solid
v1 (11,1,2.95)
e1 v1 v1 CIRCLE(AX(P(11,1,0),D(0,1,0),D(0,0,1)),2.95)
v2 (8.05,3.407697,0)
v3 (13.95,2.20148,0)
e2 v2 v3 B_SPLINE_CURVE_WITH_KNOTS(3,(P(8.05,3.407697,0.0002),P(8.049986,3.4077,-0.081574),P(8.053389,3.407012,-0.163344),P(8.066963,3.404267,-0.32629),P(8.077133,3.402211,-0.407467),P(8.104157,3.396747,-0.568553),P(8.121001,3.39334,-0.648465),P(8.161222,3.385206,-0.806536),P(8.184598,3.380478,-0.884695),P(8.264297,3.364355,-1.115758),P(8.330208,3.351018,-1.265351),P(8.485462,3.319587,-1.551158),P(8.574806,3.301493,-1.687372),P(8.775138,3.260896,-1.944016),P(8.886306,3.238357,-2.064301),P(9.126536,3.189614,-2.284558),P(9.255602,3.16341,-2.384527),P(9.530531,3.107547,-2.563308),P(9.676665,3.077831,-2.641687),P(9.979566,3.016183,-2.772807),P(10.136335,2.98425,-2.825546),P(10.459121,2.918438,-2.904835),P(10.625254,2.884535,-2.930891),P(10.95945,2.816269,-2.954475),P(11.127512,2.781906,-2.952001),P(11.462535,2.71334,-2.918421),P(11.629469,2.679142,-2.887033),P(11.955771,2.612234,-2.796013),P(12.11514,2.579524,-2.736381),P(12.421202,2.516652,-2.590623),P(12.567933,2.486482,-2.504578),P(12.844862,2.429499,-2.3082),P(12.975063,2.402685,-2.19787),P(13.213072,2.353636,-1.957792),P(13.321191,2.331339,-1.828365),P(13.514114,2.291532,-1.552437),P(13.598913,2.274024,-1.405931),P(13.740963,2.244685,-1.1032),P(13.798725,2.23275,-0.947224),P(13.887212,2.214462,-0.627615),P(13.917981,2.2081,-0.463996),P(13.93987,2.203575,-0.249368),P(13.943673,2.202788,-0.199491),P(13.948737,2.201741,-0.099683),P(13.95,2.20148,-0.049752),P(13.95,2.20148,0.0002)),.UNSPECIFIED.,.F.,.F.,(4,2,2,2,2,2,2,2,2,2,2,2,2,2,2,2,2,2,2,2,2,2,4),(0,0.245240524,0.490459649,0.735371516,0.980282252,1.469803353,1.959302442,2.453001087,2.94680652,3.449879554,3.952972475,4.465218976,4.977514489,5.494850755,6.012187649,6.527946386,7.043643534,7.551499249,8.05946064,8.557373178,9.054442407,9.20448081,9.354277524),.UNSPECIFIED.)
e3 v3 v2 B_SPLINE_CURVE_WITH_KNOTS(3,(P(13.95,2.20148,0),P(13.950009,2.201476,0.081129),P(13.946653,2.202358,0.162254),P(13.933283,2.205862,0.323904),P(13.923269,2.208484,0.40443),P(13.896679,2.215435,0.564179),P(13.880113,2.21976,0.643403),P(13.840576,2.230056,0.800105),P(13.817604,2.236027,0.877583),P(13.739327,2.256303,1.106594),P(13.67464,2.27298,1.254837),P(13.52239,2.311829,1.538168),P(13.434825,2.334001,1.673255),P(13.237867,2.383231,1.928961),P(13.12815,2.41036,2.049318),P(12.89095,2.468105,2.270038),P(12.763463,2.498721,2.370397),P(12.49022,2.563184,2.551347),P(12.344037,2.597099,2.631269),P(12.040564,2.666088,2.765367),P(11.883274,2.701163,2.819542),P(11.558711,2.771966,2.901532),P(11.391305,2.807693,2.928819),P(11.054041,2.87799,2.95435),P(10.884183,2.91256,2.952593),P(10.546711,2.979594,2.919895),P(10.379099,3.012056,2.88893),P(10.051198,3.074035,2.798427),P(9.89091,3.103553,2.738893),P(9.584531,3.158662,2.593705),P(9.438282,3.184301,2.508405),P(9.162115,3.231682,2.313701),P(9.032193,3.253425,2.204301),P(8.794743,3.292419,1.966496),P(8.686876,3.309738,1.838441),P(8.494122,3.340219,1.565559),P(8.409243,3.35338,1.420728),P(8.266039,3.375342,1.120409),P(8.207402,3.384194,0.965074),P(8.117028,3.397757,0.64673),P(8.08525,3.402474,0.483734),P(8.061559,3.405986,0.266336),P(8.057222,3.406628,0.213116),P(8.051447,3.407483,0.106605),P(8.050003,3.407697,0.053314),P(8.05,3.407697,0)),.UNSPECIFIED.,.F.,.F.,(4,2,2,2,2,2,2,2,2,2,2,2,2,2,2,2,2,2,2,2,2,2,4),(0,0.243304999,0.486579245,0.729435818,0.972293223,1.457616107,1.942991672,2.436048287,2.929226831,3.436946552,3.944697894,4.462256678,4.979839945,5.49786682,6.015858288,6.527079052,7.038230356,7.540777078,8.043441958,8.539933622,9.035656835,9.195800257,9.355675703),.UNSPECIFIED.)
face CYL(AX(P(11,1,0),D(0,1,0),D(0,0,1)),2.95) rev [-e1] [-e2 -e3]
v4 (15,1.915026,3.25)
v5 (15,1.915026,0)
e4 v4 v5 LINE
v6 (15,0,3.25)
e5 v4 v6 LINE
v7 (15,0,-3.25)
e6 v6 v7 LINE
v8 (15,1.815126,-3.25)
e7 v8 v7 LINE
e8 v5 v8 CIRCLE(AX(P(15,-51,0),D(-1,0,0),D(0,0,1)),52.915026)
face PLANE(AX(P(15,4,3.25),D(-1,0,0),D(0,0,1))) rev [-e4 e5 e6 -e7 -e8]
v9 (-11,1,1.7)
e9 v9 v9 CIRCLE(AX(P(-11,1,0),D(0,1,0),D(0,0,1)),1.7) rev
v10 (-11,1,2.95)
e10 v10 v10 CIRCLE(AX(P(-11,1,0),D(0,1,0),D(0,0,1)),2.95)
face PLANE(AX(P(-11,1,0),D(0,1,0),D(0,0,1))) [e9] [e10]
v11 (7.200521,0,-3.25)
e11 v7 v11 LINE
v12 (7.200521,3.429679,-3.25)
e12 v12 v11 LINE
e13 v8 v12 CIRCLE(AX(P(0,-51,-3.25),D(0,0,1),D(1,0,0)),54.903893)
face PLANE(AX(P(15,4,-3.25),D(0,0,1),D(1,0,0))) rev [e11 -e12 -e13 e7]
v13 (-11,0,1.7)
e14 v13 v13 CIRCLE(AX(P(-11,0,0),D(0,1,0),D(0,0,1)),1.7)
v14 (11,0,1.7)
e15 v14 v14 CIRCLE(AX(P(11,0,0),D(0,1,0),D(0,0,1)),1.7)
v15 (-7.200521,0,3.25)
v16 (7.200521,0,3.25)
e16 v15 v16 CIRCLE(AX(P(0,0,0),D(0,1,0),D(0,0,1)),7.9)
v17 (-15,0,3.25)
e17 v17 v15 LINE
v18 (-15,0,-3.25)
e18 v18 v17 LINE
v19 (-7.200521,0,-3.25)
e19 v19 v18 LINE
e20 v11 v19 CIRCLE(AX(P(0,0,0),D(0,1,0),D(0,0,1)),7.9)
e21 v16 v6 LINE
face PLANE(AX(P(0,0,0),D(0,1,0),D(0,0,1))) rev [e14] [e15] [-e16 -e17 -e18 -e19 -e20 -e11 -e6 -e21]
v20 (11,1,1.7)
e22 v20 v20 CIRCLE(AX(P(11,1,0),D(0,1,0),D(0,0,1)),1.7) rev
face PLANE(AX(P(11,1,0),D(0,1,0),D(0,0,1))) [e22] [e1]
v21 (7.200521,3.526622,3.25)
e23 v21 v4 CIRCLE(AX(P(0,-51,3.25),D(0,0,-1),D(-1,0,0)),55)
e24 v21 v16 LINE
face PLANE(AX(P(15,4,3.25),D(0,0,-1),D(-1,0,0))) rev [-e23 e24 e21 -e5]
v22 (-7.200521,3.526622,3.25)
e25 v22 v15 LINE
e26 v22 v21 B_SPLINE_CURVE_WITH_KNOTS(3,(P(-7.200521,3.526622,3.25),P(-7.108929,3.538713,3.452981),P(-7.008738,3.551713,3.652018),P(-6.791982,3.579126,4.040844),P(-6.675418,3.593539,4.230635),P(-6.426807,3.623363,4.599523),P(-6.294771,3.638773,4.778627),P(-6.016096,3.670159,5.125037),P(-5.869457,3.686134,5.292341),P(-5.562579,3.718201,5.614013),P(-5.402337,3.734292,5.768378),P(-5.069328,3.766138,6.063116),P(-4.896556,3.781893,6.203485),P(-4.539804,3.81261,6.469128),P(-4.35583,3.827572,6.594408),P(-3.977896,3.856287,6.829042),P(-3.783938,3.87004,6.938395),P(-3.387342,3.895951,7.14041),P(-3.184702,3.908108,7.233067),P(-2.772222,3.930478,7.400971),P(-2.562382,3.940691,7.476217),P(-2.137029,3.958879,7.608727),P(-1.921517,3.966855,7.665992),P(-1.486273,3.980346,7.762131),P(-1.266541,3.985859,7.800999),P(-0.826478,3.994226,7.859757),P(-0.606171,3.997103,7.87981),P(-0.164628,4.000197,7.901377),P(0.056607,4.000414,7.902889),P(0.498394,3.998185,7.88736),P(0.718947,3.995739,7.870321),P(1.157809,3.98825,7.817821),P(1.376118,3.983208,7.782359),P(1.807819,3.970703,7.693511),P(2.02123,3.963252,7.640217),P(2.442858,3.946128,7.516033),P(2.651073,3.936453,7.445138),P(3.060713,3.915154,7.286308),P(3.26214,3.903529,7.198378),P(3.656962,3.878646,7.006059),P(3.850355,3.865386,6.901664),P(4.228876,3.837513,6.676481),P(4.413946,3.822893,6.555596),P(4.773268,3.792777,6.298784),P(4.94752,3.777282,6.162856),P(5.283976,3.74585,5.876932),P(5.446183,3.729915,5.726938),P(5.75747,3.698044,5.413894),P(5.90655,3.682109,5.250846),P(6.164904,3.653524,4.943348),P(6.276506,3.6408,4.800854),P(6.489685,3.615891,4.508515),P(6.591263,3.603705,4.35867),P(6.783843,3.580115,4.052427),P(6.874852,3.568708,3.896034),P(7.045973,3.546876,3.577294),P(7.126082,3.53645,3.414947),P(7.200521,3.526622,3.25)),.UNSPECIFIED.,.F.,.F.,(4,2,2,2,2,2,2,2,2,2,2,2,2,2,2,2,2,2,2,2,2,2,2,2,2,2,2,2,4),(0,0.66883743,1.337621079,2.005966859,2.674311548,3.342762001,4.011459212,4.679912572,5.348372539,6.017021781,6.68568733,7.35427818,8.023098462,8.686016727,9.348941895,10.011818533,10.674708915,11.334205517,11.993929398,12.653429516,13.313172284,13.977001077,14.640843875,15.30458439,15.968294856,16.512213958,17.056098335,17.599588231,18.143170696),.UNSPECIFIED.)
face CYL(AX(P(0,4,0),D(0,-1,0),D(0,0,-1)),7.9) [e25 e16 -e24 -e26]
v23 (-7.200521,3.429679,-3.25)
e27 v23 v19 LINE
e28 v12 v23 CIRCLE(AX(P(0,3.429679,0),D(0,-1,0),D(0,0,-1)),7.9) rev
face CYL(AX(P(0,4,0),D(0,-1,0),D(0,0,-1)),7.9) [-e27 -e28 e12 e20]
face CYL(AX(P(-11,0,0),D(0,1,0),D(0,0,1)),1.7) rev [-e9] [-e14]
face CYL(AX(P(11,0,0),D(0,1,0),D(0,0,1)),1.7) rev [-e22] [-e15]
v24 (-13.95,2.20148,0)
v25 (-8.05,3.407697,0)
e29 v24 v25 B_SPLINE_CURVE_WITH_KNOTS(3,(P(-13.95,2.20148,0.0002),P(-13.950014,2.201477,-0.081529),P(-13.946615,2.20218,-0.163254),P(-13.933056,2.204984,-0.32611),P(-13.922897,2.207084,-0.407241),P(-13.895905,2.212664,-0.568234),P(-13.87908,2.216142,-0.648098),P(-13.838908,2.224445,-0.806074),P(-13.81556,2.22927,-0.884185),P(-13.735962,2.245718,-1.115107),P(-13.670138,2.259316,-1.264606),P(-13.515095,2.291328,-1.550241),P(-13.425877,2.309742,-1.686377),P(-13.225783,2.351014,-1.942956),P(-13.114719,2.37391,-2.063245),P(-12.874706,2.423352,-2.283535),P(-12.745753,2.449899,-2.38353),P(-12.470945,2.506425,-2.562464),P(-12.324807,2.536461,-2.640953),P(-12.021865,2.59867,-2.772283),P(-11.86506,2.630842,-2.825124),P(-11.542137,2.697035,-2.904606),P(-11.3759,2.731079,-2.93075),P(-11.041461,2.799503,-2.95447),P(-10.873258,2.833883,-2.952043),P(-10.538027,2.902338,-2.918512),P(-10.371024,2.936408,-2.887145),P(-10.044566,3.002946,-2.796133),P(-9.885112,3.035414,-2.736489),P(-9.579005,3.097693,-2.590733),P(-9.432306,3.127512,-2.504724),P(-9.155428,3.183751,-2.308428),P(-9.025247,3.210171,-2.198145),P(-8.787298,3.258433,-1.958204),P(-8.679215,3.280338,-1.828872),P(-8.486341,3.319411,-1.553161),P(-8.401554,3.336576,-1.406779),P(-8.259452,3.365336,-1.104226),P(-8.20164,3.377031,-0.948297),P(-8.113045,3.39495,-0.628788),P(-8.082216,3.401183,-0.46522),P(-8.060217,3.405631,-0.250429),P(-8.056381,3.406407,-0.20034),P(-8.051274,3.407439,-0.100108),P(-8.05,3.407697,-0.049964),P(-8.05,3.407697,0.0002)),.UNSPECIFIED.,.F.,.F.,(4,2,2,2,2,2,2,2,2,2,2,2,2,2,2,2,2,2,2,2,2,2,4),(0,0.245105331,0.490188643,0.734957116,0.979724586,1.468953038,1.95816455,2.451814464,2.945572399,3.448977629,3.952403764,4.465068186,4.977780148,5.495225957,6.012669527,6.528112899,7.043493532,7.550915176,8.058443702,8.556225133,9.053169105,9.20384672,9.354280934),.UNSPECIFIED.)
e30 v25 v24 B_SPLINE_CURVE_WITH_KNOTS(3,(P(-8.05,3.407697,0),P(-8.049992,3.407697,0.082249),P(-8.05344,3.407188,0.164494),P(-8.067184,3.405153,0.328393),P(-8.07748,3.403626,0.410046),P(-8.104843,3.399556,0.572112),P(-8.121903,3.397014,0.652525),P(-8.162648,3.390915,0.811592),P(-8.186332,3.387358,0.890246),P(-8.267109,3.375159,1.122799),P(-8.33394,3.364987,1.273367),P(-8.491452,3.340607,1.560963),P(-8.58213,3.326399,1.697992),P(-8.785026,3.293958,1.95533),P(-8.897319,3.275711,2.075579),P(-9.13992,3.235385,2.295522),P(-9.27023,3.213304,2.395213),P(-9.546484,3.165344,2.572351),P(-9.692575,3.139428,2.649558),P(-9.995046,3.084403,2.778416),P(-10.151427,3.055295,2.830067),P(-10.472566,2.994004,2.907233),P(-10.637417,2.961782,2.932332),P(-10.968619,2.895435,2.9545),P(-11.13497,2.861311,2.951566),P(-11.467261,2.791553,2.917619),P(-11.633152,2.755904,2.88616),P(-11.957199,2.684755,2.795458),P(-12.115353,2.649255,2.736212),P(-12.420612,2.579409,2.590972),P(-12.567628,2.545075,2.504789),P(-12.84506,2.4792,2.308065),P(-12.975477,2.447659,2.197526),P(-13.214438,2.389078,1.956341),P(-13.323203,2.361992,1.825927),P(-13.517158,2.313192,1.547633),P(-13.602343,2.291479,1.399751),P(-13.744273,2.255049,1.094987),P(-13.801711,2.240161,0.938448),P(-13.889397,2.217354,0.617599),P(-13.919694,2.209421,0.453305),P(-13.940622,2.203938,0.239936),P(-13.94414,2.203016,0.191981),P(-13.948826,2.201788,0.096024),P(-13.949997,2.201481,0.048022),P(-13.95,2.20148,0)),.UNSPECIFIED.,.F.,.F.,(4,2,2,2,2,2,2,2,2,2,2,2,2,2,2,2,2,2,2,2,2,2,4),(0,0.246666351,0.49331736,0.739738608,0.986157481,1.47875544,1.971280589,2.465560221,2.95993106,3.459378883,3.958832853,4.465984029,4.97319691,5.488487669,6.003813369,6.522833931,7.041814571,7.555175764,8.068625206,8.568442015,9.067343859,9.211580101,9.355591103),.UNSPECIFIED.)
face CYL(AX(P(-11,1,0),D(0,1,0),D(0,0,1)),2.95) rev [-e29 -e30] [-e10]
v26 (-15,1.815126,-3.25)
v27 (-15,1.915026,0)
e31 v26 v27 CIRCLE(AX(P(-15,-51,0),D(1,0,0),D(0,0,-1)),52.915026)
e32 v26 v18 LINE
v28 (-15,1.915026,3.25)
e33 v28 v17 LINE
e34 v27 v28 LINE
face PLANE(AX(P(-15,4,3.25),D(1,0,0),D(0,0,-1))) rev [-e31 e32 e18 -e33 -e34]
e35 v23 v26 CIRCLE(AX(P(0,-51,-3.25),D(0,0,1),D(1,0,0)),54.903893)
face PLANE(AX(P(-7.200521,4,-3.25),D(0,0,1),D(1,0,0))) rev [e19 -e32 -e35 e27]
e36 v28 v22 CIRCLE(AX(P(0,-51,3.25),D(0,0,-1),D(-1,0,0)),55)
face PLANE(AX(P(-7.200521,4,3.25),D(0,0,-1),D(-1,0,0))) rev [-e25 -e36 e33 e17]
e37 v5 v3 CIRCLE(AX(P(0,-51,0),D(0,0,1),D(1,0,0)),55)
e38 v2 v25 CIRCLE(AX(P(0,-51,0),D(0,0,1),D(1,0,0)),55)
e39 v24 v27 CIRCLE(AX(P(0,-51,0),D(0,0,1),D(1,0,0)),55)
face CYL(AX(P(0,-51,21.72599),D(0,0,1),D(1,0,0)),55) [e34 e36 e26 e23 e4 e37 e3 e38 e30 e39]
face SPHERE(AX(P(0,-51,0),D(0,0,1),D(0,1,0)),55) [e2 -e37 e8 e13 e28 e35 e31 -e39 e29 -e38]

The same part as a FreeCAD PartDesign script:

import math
import FreeCAD as App
import Part
import Sketcher
Q = App.Units.Quantity

doc = App.newDocument("Part")
params = doc.addObject("Spreadsheet::Sheet", "Params")
for row, (alias, value) in enumerate([
    ("sketch1_radius", "7.9 mm"),
    ("sketch1_height", "6.5 mm"),
    ("pad1_length", "4 mm"),
    ("sketch2_diameter", "3.4 mm"),
    ("pocket1_length", "4 mm"),
    ("sketch3_diameter", "5.9 mm"),
    ("pocket2_length", "3 mm"),
    ("sketch4_radius", "55 mm"),
    ("sketch4_width", "3 mm"),
    ("sketch4_height", "10 mm"),
    ("sketch4_height2", "20 mm"),
    ("groove_angle", "360 deg"),
], start=1):
    params.set(f"A{row}", alias)
    params.set(f"B{row}", "=" + value)
    params.setAlias(f"B{row}", alias)

body = doc.addObject("PartDesign::Body", "Body")

# Sketch on XZ plane
sketch1 = doc.addObject("Sketcher::SketchObject", "Sketch")
body.addObject(sketch1)
sketch1.AttachmentSupport = (doc.XZ_Plane, [""])
sketch1.MapMode = "FlatFace"
sketch1.addGeometry([
    Part.LineSegment(App.Vector(-7, -3, 0), App.Vector(-15, -3, 0)),  # 0
    Part.LineSegment(App.Vector(-15, -3, 0), App.Vector(-15, 3, 0)),  # 1
    Part.LineSegment(App.Vector(-15, 3, 0), App.Vector(-7, 3, 0)),  # 2
    Part.ArcOfCircle(Part.Circle(App.Vector(0, 0, 0), App.Vector(0, 0, 1), 8), math.radians(24), math.radians(156)),  # 3
    Part.LineSegment(App.Vector(7, 3, 0), App.Vector(15, 3, 0)),  # 4
    Part.LineSegment(App.Vector(15, 3, 0), App.Vector(15, -3, 0)),  # 5
    Part.LineSegment(App.Vector(15, -3, 0), App.Vector(7, -3, 0)),  # 6
    Part.ArcOfCircle(Part.Circle(App.Vector(0, 0, 0), App.Vector(0, 0, 1), 8), math.radians(-156), math.radians(-24)),  # 7
], False)
sketch1.addConstraint([
    Sketcher.Constraint("Coincident", 0, 2, 1, 1),
    Sketcher.Constraint("Coincident", 1, 2, 2, 1),
    Sketcher.Constraint("Coincident", 2, 2, 3, 2),
    Sketcher.Constraint("Coincident", 3, 1, 4, 1),
    Sketcher.Constraint("Coincident", 4, 2, 5, 1),
    Sketcher.Constraint("Coincident", 5, 2, 6, 1),
    Sketcher.Constraint("Coincident", 6, 2, 7, 2),
    Sketcher.Constraint("Coincident", 7, 1, 0, 1),
    Sketcher.Constraint("Horizontal", 0),
    Sketcher.Constraint("Vertical", 1),
    Sketcher.Constraint("Horizontal", 2),
    Sketcher.Constraint("Horizontal", 4),
    Sketcher.Constraint("Vertical", 5),
    Sketcher.Constraint("Horizontal", 6),
    Sketcher.Constraint("Coincident", 3, 3, -1, 1),
    Sketcher.Constraint("Coincident", 7, 3, -1, 1),
    Sketcher.Constraint("Equal", 3, 7),
    Sketcher.Constraint("Symmetric", 0, 2, 4, 2, -1, 1),
    Sketcher.Constraint("Horizontal", 2, 2, 3, 1),
    Sketcher.Constraint("Horizontal", 0, 2, 5, 2),
    Sketcher.Constraint("Radius", 3, Q("7.9 mm")),
    Sketcher.Constraint("DistanceY", 1, 1, 1, 2, Q("6.5 mm")),
    Sketcher.Constraint("DistanceX", 0, 2, -1, 1, Q("15 mm")),
])
sketch1.setExpression("Constraints[20]", "Params.sketch1_radius")
sketch1.setExpression("Constraints[21]", "Params.sketch1_height")
pad1 = doc.addObject("PartDesign::Pad", "Pad")
body.addObject(pad1)
pad1.Profile = sketch1
pad1.setExpression("Length", "Params.pad1_length")
pad1.Reversed = True

# Sketch on XZ plane
sketch2 = doc.addObject("Sketcher::SketchObject", "Sketch001")
body.addObject(sketch2)
sketch2.AttachmentSupport = (doc.XZ_Plane, [""])
sketch2.MapMode = "FlatFace"
sketch2.AttachmentOffset = App.Placement(App.Vector(0, 0, -4), App.Rotation())
sketch2.addGeometry([
    Part.Circle(App.Vector(-11, 0, 0), App.Vector(0, 0, 1), 1.7),
    Part.Circle(App.Vector(11, 0, 0), App.Vector(0, 0, 1), 1.7),
], False)
sketch2.addConstraint([
    Sketcher.Constraint("Equal", 0, 1),
    Sketcher.Constraint("Symmetric", 0, 3, 1, 3, -1, 1),
    Sketcher.Constraint("PointOnObject", 0, 3, -1),
    Sketcher.Constraint("Diameter", 0, Q("3.4 mm")),
    Sketcher.Constraint("DistanceX", 0, 3, -1, 1, Q("11 mm")),
])
sketch2.setExpression("Constraints[3]", "Params.sketch2_diameter")
pocket1 = doc.addObject("PartDesign::Pocket", "Pocket")
body.addObject(pocket1)
pocket1.Profile = sketch2
pocket1.setExpression("Length", "Params.pocket1_length")
pocket1.Reversed = True

# Sketch on XZ plane
sketch3 = doc.addObject("Sketcher::SketchObject", "Sketch002")
body.addObject(sketch3)
sketch3.AttachmentSupport = (doc.XZ_Plane, [""])
sketch3.MapMode = "FlatFace"
sketch3.AttachmentOffset = App.Placement(App.Vector(0, 0, -4), App.Rotation())
sketch3.addGeometry([
    Part.Circle(App.Vector(-11, 0, 0), App.Vector(0, 0, 1), 3),
    Part.Circle(App.Vector(11, 0, 0), App.Vector(0, 0, 1), 3),
], False)
sketch3.addConstraint([
    Sketcher.Constraint("Equal", 0, 1),
    Sketcher.Constraint("Symmetric", 0, 3, 1, 3, -1, 1),
    Sketcher.Constraint("PointOnObject", 0, 3, -1),
    Sketcher.Constraint("Diameter", 0, Q("5.9 mm")),
    Sketcher.Constraint("DistanceX", 0, 3, -1, 1, Q("11 mm")),
])
sketch3.setExpression("Constraints[3]", "Params.sketch3_diameter")
pocket2 = doc.addObject("PartDesign::Pocket", "Pocket001")
body.addObject(pocket2)
pocket2.Profile = sketch3
pocket2.setExpression("Length", "Params.pocket2_length")
pocket2.Reversed = True

# Sketch on YZ plane
sketch4 = doc.addObject("Sketcher::SketchObject", "Sketch003")
body.addObject(sketch4)
sketch4.AttachmentSupport = (doc.YZ_Plane, [""])
sketch4.MapMode = "FlatFace"
sketch4.addGeometry([
    Part.LineSegment(App.Vector(4, 10, 0), App.Vector(4, 0, 0)),  # 0
    Part.ArcOfCircle(Part.Circle(App.Vector(-51, 0, 0), App.Vector(0, 0, 1), 55), math.radians(-10.48), math.radians(0)),  # 1
    Part.LineSegment(App.Vector(3.1, -10, 0), App.Vector(7, -10, 0)),  # 2
    Part.LineSegment(App.Vector(7, -10, 0), App.Vector(7, 10, 0)),  # 3
    Part.LineSegment(App.Vector(7, 10, 0), App.Vector(4, 10, 0)),  # 4
], False)
sketch4.addGeometry(Part.LineSegment(App.Vector(-51, 10, 0), App.Vector(-51, -10, 0)), True)  # axis
sketch4.addConstraint([
    Sketcher.Constraint("Tangent", 0, 2, 1, 2),
    Sketcher.Constraint("Coincident", 1, 1, 2, 1),
    Sketcher.Constraint("Coincident", 2, 2, 3, 1),
    Sketcher.Constraint("Coincident", 3, 2, 4, 1),
    Sketcher.Constraint("Coincident", 4, 2, 0, 1),
    Sketcher.Constraint("Vertical", 0),
    Sketcher.Constraint("Horizontal", 2),
    Sketcher.Constraint("Vertical", 3),
    Sketcher.Constraint("Horizontal", 4),
    Sketcher.Constraint("Vertical", 5),
    Sketcher.Constraint("PointOnObject", 1, 3, -1),
    Sketcher.Constraint("Horizontal", 4, 2, 5, 1),
    Sketcher.Constraint("Horizontal", 2, 2, 5, 2),
    Sketcher.Constraint("Vertical", 1, 3, 5, 1),
    Sketcher.Constraint("Radius", 1, Q("55 mm")),
    Sketcher.Constraint("DistanceX", 4, 2, 4, 1, Q("3 mm")),
    Sketcher.Constraint("DistanceY", 0, 2, 0, 1, Q("10 mm")),
    Sketcher.Constraint("DistanceY", 3, 1, 3, 2, Q("20 mm")),
    Sketcher.Constraint("DistanceX", 1, 3, -1, 1, Q("51 mm")),
])
sketch4.setExpression("Constraints[14]", "Params.sketch4_radius")
sketch4.setExpression("Constraints[15]", "Params.sketch4_width")
sketch4.setExpression("Constraints[16]", "Params.sketch4_height")
sketch4.setExpression("Constraints[17]", "Params.sketch4_height2")
groove = doc.addObject("PartDesign::Groove", "Groove")
body.addObject(groove)
groove.Profile = sketch4
groove.ReferenceAxis = (sketch4, ["Axis0"])
groove.setExpression("Angle", "Params.groove_angle")

doc.recompute()
